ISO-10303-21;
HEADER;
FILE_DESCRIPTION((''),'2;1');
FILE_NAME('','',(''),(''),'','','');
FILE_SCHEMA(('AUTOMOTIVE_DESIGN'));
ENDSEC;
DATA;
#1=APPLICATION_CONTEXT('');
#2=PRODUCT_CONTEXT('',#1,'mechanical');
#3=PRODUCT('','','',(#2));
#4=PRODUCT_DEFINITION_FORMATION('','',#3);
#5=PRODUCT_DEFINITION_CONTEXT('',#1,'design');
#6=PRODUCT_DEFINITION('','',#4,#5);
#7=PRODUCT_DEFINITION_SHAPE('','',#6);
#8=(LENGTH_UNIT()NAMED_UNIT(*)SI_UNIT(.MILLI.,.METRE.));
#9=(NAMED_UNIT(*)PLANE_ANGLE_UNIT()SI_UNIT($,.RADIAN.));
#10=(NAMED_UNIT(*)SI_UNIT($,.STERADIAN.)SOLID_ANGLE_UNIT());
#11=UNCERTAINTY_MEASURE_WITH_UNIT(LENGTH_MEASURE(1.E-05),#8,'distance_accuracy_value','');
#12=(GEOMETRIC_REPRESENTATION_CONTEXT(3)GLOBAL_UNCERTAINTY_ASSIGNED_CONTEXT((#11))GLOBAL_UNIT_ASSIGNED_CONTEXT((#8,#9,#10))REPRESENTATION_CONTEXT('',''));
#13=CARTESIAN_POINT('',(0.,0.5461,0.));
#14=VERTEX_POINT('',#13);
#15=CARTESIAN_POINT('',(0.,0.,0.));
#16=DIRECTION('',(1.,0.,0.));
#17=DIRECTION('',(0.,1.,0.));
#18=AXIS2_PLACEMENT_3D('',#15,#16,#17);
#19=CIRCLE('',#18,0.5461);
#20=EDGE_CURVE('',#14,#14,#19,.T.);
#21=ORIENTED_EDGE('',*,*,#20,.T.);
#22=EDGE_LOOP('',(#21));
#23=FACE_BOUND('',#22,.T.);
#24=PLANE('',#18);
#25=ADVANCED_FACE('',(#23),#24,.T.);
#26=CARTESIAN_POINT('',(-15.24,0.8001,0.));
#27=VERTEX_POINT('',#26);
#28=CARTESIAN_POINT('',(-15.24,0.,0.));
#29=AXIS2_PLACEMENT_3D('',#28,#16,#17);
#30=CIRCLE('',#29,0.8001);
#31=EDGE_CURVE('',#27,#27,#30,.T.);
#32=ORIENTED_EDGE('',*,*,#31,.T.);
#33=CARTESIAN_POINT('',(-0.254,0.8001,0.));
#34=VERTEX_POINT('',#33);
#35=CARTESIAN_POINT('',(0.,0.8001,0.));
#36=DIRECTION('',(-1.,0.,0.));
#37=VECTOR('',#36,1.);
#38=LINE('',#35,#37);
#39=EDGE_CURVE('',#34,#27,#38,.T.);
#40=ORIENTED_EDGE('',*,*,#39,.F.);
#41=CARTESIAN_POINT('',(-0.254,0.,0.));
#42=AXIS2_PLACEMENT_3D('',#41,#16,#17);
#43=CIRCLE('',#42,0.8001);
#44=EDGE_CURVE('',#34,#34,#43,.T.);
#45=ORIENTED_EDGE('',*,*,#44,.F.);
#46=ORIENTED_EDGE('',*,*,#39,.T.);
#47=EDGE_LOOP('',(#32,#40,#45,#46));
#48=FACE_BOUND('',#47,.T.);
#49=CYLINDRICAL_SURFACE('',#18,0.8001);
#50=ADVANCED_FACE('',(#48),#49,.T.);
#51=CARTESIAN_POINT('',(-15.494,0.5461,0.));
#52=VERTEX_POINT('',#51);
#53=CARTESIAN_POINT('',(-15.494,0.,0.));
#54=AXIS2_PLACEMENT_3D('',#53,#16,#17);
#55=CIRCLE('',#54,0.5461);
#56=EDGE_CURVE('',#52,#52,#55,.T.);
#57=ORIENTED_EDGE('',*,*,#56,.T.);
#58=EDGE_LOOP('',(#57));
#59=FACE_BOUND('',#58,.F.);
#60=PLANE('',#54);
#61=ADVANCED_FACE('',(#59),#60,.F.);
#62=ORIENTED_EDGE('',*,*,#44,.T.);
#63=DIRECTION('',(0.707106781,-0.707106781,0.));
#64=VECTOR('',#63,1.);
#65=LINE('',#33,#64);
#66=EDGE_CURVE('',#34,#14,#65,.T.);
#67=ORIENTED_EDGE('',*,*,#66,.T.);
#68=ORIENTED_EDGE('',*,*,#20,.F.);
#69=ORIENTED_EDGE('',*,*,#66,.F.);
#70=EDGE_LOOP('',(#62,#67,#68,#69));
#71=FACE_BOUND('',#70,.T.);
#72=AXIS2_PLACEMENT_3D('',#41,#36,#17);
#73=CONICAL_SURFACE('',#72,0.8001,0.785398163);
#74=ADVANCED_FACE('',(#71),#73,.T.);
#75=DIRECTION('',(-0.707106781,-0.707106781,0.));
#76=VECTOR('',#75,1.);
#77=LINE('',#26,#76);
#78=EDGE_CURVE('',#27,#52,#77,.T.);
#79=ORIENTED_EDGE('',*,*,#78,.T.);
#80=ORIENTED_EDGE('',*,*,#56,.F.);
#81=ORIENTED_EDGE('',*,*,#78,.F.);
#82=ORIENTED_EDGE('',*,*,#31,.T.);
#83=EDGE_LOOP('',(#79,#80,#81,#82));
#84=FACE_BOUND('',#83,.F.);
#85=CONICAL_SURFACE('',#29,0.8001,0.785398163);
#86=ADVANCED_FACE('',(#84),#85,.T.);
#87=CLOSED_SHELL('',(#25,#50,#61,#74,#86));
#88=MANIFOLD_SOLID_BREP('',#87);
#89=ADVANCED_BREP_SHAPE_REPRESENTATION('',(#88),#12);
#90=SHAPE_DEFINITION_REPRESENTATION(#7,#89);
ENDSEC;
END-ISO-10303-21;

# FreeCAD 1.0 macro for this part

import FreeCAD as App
import Part
import Sketcher
Q = App.Units.Quantity


def edges_at(feature, points):
    """Names of the edges that pass closest to the given points."""
    edges = feature.Shape.Edges
    near = lambda p: min(range(len(edges)), key=lambda i: edges[i].distToShape(Part.Vertex(*p))[0])
    return sorted({f"Edge{near(p) + 1}" for p in points})

doc = App.newDocument("Part")
body = doc.addObject("PartDesign::Body", "Body")

sketch1 = body.newObject("Sketcher::SketchObject", "Sketch")
sketch1.AttachmentSupport = (doc.getObject("YZ_Plane"), [""])
sketch1.MapMode = "FlatFace"
sketch1.addGeometry(Part.Circle(App.Vector(0, 0, 0), App.Vector(0, 0, 1), 0.8001), False)
sketch1.addConstraint(Sketcher.Constraint("Coincident", 0, 3, -1, 1))
sketch1.addConstraint(Sketcher.Constraint("Diameter", 0, Q("0.063 in")))
pad1 = body.newObject("PartDesign::Pad", "Pad")
pad1.Profile = sketch1
pad1.Length = Q("0.61 in")
pad1.Reversed = True
doc.recompute()

chamfer = body.newObject("PartDesign::Chamfer", "Chamfer")
chamfer.Base = (pad1, edges_at(pad1, [(-15.494, -0.8, 0), (0, -0.8, 0)]))
chamfer.ChamferType = "Two distances"
chamfer.Size = Q("0.01 in")
chamfer.Size2 = Q("0.01 in")

doc.recompute()
